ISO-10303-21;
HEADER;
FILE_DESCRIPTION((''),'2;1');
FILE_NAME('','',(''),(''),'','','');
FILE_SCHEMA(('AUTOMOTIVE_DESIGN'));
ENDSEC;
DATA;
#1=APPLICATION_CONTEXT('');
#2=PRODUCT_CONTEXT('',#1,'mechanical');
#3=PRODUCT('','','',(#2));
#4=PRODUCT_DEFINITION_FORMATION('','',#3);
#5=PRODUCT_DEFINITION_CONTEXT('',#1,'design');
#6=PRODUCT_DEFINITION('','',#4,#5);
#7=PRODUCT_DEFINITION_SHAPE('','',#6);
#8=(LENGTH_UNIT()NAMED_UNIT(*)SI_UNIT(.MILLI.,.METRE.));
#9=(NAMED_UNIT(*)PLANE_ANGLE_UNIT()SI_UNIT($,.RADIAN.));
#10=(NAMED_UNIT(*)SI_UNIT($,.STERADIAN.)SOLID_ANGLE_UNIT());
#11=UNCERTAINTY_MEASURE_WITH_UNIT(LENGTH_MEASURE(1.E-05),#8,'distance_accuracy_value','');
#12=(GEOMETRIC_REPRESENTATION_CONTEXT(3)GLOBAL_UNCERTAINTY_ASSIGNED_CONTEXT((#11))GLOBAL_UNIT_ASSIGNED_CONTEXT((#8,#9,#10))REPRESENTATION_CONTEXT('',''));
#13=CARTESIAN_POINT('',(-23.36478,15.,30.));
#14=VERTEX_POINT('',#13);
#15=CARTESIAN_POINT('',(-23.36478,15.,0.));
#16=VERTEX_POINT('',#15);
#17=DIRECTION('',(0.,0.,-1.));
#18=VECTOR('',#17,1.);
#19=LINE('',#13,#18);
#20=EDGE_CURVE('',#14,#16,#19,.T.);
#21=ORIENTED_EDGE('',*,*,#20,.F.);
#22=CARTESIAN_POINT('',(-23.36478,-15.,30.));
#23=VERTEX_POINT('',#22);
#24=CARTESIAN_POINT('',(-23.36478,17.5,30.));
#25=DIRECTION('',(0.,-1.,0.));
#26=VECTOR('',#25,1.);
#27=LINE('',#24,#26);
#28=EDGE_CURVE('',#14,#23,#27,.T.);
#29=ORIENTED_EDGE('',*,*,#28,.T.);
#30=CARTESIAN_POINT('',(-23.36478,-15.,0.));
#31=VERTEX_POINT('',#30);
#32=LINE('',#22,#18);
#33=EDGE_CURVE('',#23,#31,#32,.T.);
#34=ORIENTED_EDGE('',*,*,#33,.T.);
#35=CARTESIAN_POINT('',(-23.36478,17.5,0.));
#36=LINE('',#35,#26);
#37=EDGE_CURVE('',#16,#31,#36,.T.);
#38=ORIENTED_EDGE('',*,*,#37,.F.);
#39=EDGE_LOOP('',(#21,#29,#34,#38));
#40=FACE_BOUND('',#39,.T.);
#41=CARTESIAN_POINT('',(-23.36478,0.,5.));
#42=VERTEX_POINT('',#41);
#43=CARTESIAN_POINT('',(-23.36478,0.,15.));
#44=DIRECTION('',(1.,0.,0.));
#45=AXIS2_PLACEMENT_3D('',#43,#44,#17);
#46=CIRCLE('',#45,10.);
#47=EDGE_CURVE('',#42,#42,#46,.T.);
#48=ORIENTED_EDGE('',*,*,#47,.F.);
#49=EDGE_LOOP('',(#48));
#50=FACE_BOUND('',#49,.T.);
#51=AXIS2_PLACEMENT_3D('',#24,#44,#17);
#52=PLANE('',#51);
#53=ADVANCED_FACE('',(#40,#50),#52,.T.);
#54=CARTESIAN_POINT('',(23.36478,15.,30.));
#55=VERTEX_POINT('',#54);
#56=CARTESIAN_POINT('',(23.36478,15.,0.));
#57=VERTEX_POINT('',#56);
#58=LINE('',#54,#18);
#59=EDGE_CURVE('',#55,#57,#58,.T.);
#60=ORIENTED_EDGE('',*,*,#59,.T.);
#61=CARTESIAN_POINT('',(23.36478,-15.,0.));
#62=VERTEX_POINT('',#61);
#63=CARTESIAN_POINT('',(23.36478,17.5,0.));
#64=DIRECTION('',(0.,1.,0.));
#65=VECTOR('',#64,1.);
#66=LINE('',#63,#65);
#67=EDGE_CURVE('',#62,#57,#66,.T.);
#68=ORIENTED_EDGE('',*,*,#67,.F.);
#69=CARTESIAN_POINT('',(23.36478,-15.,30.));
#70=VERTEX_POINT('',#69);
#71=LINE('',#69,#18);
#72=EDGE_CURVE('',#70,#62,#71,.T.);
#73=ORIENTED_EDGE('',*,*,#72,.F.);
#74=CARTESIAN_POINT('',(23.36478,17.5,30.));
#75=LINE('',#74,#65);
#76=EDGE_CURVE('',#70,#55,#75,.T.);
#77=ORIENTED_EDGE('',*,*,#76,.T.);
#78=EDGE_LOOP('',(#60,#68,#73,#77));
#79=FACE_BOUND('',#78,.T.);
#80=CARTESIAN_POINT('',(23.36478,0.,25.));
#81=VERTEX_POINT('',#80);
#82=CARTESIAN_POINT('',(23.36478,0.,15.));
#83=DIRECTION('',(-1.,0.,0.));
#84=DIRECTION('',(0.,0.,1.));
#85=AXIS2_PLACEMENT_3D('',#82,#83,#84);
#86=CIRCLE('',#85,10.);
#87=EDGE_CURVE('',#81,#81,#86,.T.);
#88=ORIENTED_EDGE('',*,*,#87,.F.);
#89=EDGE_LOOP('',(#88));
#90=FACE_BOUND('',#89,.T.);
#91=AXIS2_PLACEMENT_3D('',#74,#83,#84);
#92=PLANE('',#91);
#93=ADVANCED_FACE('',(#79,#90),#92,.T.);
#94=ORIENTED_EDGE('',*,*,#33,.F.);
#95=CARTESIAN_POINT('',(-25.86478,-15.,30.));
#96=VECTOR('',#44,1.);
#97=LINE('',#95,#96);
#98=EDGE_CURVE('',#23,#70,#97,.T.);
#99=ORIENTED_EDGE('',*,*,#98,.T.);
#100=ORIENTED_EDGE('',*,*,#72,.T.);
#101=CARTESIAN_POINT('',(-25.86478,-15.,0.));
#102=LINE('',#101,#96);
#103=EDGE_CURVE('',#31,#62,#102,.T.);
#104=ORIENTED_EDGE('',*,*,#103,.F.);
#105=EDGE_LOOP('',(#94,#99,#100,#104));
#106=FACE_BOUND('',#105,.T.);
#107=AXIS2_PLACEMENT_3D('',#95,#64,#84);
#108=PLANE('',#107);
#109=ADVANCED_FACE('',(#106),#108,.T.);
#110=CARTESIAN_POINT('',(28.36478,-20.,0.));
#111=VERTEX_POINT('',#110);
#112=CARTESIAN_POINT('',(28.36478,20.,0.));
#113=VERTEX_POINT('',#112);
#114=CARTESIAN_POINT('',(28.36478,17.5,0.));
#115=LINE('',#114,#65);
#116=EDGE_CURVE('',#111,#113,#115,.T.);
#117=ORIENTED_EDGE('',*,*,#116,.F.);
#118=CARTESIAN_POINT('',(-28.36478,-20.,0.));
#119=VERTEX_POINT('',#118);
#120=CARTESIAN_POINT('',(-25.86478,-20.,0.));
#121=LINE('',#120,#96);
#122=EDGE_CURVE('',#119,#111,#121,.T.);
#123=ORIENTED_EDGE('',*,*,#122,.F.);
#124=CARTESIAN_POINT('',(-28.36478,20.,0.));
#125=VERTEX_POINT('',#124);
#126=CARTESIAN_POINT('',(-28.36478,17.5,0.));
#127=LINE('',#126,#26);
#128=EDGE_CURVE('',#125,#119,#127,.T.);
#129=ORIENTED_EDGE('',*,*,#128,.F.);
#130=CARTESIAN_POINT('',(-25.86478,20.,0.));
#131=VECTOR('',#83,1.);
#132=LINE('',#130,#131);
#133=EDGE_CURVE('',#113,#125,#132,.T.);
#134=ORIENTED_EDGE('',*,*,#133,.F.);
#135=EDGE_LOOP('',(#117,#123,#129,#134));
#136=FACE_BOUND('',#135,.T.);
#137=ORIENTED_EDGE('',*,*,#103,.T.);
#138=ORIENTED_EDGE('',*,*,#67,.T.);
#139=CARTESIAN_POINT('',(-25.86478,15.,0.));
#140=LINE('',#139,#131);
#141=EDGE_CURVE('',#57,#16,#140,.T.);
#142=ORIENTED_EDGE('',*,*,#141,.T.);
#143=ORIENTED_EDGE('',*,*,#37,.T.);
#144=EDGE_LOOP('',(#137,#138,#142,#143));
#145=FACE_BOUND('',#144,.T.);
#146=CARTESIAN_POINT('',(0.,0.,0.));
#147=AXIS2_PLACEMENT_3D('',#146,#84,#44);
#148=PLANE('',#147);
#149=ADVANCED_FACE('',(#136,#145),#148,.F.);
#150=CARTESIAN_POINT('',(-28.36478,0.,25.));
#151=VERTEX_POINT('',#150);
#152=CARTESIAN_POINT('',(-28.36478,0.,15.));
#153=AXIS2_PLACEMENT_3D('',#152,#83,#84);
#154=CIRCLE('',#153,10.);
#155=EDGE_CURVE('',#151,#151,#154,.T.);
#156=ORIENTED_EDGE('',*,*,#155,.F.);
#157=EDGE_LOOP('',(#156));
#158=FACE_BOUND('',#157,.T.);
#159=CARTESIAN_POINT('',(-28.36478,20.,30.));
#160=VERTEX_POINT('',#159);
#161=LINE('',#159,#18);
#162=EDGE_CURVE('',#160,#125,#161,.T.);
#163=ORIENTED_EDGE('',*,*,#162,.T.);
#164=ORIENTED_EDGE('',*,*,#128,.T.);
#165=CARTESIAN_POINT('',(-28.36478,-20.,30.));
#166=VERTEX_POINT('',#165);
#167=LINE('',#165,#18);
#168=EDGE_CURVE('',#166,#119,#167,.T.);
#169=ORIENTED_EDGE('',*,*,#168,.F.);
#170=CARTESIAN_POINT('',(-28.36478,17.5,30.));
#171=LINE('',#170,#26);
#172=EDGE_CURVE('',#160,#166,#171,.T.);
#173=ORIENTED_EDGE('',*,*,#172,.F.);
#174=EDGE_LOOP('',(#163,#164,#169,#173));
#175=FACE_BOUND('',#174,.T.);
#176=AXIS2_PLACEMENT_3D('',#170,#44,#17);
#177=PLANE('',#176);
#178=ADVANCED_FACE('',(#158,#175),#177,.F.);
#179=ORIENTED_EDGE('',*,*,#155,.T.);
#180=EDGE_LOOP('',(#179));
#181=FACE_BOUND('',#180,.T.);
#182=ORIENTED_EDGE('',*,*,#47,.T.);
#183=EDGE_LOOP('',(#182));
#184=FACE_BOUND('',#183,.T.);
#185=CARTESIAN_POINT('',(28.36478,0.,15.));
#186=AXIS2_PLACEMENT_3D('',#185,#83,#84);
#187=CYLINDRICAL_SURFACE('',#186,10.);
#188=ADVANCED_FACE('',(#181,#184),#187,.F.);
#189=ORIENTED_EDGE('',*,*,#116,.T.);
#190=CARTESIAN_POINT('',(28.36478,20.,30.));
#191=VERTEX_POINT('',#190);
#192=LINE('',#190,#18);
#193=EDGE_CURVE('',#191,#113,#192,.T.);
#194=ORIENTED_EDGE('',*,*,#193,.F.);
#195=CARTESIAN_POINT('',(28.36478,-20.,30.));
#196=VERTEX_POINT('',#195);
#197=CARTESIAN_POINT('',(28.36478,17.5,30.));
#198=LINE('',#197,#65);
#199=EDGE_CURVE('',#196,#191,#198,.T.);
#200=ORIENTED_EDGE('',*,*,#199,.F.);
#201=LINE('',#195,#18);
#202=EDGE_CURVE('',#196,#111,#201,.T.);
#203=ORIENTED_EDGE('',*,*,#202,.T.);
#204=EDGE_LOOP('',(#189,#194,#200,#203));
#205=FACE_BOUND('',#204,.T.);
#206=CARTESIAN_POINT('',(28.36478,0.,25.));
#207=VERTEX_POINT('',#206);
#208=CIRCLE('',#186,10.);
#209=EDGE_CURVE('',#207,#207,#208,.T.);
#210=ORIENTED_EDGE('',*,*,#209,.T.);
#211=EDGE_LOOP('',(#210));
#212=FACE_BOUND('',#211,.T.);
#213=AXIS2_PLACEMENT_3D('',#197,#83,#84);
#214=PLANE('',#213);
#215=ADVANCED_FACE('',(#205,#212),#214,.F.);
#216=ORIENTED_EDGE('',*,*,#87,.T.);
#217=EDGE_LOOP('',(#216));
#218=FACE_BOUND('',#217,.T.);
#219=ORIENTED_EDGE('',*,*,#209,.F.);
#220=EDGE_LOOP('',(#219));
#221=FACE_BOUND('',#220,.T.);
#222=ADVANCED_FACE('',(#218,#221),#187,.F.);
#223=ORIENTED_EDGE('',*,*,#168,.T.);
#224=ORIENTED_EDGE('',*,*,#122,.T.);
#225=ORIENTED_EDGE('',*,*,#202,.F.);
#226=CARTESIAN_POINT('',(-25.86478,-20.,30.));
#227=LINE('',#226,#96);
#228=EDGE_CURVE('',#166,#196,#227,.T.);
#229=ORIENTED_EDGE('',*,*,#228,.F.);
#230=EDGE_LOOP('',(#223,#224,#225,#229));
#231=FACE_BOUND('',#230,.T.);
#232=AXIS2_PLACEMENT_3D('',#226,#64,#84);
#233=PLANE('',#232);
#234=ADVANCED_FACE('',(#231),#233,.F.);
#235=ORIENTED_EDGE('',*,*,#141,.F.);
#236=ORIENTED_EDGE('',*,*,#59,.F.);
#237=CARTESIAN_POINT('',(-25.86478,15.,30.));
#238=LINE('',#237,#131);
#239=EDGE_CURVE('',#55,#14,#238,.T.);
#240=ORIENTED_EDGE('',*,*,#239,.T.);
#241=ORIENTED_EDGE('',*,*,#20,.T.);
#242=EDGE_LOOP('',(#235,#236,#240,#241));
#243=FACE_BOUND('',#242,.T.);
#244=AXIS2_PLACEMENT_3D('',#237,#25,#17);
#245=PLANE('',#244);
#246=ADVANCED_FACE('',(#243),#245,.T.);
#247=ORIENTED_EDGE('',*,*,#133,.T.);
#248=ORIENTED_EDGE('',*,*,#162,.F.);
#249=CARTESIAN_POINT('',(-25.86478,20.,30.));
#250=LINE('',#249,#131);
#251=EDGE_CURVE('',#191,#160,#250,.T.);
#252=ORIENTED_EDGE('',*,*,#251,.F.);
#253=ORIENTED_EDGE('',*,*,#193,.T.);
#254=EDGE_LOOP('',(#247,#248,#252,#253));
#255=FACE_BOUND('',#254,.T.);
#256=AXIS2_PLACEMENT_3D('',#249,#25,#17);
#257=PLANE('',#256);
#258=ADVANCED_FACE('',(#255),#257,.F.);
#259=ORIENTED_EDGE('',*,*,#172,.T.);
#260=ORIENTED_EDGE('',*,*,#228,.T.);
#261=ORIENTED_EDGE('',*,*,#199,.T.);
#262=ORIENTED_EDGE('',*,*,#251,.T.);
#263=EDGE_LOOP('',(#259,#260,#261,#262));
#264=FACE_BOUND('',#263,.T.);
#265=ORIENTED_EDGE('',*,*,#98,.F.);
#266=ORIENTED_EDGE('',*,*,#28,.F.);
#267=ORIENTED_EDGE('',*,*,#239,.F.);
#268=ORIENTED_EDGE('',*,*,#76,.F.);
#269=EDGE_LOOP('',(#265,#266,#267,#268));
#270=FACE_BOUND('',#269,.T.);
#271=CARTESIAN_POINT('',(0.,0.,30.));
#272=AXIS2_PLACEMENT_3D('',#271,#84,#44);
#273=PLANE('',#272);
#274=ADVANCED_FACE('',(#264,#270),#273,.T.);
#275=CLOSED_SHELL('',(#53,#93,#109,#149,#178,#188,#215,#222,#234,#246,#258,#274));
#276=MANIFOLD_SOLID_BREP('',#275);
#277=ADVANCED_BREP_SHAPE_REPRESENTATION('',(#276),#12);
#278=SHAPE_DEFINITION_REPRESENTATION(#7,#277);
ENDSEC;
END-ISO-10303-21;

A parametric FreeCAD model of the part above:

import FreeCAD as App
import Part
import Sketcher

doc = App.newDocument("Part")
params = doc.addObject("Spreadsheet::Sheet", "Params")
for row, (alias, value) in enumerate([
    ("sketch1_height", "40 mm"),
    ("sketch1_height2", "30 mm"),
    ("pad1_length", "30 mm"),
    ("sketch2_diameter", "20 mm"),
], start=1):
    params.set(f"A{row}", alias)
    params.set(f"B{row}", "=" + value)
    params.setAlias(f"B{row}", alias)

body = doc.addObject("PartDesign::Body", "Body")

sketch1 = body.newObject("Sketcher::SketchObject", "Sketch")
sketch1.AttachmentSupport = (doc.getObject("XY_Plane"), [""])
sketch1.MapMode = "FlatFace"
sketch1.addGeometry([
    Part.LineSegment(App.Vector(-28, 20, 0), App.Vector(-28, -20, 0)),
    Part.LineSegment(App.Vector(-28, -20, 0), App.Vector(28, -20, 0)),
    Part.LineSegment(App.Vector(28, -20, 0), App.Vector(28, 20, 0)),
    Part.LineSegment(App.Vector(28, 20, 0), App.Vector(-28, 20, 0)),
    Part.LineSegment(App.Vector(23, -15, 0), App.Vector(-23, -15, 0)),
    Part.LineSegment(App.Vector(-23, -15, 0), App.Vector(-23, 15, 0)),
    Part.LineSegment(App.Vector(-23, 15, 0), App.Vector(23, 15, 0)),
    Part.LineSegment(App.Vector(23, 15, 0), App.Vector(23, -15, 0)),
], False)
sketch1.addConstraint([
    Sketcher.Constraint("Coincident", 0, 2, 1, 1),
    Sketcher.Constraint("Coincident", 1, 2, 2, 1),
    Sketcher.Constraint("Coincident", 2, 2, 3, 1),
    Sketcher.Constraint("Coincident", 3, 2, 0, 1),
    Sketcher.Constraint("Coincident", 4, 2, 5, 1),
    Sketcher.Constraint("Coincident", 5, 2, 6, 1),
    Sketcher.Constraint("Coincident", 6, 2, 7, 1),
    Sketcher.Constraint("Coincident", 7, 2, 4, 1),
    Sketcher.Constraint("Vertical", 0),
    Sketcher.Constraint("Horizontal", 1),
    Sketcher.Constraint("Vertical", 2),
    Sketcher.Constraint("Horizontal", 3),
    Sketcher.Constraint("Horizontal", 4),
    Sketcher.Constraint("Vertical", 5),
    Sketcher.Constraint("Horizontal", 6),
    Sketcher.Constraint("Vertical", 7),
    Sketcher.Constraint("Symmetric", 0, 2, 2, 2, -1, 1),
    Sketcher.Constraint("Symmetric", 4, 2, 6, 2, -1, 1),
    Sketcher.Constraint("DistanceY", 0, 2, 0, 1, 40.0),
    Sketcher.Constraint("DistanceY", 5, 1, 5, 2, 30.0),
    Sketcher.Constraint("DistanceX", 0, 2, 4, 2, 5.0),
    Sketcher.Constraint("DistanceX", 1, 1, 1, 2, 56.72956),
])
sketch1.setExpression("Constraints[18]", "Params.sketch1_height")
sketch1.setExpression("Constraints[19]", "Params.sketch1_height2")
pad1 = body.newObject("PartDesign::Pad", "Pad")
pad1.Profile = sketch1
pad1.setExpression("Length", "Params.pad1_length")

sketch2 = body.newObject("Sketcher::SketchObject", "Sketch001")
sketch2.AttachmentSupport = (doc.getObject("YZ_Plane"), [""])
sketch2.MapMode = "FlatFace"
sketch2.AttachmentOffset = App.Placement(App.Vector(0, 0, -28.36478), App.Rotation())
sketch2.addGeometry(Part.Circle(App.Vector(0, 15, 0), App.Vector(0, 0, 1), 10), False)
sketch2.addConstraint([
    Sketcher.Constraint("PointOnObject", 0, 3, -2),
    Sketcher.Constraint("Diameter", 0, 20.0),
    Sketcher.Constraint("DistanceY", -1, 1, 0, 3, 15.0),
])
sketch2.setExpression("Constraints[1]", "Params.sketch2_diameter")
pocket1 = body.newObject("PartDesign::Pocket", "Pocket")
pocket1.Profile = sketch2
pocket1.Type = "ThroughAll"
pocket1.Reversed = True

doc.recompute()
